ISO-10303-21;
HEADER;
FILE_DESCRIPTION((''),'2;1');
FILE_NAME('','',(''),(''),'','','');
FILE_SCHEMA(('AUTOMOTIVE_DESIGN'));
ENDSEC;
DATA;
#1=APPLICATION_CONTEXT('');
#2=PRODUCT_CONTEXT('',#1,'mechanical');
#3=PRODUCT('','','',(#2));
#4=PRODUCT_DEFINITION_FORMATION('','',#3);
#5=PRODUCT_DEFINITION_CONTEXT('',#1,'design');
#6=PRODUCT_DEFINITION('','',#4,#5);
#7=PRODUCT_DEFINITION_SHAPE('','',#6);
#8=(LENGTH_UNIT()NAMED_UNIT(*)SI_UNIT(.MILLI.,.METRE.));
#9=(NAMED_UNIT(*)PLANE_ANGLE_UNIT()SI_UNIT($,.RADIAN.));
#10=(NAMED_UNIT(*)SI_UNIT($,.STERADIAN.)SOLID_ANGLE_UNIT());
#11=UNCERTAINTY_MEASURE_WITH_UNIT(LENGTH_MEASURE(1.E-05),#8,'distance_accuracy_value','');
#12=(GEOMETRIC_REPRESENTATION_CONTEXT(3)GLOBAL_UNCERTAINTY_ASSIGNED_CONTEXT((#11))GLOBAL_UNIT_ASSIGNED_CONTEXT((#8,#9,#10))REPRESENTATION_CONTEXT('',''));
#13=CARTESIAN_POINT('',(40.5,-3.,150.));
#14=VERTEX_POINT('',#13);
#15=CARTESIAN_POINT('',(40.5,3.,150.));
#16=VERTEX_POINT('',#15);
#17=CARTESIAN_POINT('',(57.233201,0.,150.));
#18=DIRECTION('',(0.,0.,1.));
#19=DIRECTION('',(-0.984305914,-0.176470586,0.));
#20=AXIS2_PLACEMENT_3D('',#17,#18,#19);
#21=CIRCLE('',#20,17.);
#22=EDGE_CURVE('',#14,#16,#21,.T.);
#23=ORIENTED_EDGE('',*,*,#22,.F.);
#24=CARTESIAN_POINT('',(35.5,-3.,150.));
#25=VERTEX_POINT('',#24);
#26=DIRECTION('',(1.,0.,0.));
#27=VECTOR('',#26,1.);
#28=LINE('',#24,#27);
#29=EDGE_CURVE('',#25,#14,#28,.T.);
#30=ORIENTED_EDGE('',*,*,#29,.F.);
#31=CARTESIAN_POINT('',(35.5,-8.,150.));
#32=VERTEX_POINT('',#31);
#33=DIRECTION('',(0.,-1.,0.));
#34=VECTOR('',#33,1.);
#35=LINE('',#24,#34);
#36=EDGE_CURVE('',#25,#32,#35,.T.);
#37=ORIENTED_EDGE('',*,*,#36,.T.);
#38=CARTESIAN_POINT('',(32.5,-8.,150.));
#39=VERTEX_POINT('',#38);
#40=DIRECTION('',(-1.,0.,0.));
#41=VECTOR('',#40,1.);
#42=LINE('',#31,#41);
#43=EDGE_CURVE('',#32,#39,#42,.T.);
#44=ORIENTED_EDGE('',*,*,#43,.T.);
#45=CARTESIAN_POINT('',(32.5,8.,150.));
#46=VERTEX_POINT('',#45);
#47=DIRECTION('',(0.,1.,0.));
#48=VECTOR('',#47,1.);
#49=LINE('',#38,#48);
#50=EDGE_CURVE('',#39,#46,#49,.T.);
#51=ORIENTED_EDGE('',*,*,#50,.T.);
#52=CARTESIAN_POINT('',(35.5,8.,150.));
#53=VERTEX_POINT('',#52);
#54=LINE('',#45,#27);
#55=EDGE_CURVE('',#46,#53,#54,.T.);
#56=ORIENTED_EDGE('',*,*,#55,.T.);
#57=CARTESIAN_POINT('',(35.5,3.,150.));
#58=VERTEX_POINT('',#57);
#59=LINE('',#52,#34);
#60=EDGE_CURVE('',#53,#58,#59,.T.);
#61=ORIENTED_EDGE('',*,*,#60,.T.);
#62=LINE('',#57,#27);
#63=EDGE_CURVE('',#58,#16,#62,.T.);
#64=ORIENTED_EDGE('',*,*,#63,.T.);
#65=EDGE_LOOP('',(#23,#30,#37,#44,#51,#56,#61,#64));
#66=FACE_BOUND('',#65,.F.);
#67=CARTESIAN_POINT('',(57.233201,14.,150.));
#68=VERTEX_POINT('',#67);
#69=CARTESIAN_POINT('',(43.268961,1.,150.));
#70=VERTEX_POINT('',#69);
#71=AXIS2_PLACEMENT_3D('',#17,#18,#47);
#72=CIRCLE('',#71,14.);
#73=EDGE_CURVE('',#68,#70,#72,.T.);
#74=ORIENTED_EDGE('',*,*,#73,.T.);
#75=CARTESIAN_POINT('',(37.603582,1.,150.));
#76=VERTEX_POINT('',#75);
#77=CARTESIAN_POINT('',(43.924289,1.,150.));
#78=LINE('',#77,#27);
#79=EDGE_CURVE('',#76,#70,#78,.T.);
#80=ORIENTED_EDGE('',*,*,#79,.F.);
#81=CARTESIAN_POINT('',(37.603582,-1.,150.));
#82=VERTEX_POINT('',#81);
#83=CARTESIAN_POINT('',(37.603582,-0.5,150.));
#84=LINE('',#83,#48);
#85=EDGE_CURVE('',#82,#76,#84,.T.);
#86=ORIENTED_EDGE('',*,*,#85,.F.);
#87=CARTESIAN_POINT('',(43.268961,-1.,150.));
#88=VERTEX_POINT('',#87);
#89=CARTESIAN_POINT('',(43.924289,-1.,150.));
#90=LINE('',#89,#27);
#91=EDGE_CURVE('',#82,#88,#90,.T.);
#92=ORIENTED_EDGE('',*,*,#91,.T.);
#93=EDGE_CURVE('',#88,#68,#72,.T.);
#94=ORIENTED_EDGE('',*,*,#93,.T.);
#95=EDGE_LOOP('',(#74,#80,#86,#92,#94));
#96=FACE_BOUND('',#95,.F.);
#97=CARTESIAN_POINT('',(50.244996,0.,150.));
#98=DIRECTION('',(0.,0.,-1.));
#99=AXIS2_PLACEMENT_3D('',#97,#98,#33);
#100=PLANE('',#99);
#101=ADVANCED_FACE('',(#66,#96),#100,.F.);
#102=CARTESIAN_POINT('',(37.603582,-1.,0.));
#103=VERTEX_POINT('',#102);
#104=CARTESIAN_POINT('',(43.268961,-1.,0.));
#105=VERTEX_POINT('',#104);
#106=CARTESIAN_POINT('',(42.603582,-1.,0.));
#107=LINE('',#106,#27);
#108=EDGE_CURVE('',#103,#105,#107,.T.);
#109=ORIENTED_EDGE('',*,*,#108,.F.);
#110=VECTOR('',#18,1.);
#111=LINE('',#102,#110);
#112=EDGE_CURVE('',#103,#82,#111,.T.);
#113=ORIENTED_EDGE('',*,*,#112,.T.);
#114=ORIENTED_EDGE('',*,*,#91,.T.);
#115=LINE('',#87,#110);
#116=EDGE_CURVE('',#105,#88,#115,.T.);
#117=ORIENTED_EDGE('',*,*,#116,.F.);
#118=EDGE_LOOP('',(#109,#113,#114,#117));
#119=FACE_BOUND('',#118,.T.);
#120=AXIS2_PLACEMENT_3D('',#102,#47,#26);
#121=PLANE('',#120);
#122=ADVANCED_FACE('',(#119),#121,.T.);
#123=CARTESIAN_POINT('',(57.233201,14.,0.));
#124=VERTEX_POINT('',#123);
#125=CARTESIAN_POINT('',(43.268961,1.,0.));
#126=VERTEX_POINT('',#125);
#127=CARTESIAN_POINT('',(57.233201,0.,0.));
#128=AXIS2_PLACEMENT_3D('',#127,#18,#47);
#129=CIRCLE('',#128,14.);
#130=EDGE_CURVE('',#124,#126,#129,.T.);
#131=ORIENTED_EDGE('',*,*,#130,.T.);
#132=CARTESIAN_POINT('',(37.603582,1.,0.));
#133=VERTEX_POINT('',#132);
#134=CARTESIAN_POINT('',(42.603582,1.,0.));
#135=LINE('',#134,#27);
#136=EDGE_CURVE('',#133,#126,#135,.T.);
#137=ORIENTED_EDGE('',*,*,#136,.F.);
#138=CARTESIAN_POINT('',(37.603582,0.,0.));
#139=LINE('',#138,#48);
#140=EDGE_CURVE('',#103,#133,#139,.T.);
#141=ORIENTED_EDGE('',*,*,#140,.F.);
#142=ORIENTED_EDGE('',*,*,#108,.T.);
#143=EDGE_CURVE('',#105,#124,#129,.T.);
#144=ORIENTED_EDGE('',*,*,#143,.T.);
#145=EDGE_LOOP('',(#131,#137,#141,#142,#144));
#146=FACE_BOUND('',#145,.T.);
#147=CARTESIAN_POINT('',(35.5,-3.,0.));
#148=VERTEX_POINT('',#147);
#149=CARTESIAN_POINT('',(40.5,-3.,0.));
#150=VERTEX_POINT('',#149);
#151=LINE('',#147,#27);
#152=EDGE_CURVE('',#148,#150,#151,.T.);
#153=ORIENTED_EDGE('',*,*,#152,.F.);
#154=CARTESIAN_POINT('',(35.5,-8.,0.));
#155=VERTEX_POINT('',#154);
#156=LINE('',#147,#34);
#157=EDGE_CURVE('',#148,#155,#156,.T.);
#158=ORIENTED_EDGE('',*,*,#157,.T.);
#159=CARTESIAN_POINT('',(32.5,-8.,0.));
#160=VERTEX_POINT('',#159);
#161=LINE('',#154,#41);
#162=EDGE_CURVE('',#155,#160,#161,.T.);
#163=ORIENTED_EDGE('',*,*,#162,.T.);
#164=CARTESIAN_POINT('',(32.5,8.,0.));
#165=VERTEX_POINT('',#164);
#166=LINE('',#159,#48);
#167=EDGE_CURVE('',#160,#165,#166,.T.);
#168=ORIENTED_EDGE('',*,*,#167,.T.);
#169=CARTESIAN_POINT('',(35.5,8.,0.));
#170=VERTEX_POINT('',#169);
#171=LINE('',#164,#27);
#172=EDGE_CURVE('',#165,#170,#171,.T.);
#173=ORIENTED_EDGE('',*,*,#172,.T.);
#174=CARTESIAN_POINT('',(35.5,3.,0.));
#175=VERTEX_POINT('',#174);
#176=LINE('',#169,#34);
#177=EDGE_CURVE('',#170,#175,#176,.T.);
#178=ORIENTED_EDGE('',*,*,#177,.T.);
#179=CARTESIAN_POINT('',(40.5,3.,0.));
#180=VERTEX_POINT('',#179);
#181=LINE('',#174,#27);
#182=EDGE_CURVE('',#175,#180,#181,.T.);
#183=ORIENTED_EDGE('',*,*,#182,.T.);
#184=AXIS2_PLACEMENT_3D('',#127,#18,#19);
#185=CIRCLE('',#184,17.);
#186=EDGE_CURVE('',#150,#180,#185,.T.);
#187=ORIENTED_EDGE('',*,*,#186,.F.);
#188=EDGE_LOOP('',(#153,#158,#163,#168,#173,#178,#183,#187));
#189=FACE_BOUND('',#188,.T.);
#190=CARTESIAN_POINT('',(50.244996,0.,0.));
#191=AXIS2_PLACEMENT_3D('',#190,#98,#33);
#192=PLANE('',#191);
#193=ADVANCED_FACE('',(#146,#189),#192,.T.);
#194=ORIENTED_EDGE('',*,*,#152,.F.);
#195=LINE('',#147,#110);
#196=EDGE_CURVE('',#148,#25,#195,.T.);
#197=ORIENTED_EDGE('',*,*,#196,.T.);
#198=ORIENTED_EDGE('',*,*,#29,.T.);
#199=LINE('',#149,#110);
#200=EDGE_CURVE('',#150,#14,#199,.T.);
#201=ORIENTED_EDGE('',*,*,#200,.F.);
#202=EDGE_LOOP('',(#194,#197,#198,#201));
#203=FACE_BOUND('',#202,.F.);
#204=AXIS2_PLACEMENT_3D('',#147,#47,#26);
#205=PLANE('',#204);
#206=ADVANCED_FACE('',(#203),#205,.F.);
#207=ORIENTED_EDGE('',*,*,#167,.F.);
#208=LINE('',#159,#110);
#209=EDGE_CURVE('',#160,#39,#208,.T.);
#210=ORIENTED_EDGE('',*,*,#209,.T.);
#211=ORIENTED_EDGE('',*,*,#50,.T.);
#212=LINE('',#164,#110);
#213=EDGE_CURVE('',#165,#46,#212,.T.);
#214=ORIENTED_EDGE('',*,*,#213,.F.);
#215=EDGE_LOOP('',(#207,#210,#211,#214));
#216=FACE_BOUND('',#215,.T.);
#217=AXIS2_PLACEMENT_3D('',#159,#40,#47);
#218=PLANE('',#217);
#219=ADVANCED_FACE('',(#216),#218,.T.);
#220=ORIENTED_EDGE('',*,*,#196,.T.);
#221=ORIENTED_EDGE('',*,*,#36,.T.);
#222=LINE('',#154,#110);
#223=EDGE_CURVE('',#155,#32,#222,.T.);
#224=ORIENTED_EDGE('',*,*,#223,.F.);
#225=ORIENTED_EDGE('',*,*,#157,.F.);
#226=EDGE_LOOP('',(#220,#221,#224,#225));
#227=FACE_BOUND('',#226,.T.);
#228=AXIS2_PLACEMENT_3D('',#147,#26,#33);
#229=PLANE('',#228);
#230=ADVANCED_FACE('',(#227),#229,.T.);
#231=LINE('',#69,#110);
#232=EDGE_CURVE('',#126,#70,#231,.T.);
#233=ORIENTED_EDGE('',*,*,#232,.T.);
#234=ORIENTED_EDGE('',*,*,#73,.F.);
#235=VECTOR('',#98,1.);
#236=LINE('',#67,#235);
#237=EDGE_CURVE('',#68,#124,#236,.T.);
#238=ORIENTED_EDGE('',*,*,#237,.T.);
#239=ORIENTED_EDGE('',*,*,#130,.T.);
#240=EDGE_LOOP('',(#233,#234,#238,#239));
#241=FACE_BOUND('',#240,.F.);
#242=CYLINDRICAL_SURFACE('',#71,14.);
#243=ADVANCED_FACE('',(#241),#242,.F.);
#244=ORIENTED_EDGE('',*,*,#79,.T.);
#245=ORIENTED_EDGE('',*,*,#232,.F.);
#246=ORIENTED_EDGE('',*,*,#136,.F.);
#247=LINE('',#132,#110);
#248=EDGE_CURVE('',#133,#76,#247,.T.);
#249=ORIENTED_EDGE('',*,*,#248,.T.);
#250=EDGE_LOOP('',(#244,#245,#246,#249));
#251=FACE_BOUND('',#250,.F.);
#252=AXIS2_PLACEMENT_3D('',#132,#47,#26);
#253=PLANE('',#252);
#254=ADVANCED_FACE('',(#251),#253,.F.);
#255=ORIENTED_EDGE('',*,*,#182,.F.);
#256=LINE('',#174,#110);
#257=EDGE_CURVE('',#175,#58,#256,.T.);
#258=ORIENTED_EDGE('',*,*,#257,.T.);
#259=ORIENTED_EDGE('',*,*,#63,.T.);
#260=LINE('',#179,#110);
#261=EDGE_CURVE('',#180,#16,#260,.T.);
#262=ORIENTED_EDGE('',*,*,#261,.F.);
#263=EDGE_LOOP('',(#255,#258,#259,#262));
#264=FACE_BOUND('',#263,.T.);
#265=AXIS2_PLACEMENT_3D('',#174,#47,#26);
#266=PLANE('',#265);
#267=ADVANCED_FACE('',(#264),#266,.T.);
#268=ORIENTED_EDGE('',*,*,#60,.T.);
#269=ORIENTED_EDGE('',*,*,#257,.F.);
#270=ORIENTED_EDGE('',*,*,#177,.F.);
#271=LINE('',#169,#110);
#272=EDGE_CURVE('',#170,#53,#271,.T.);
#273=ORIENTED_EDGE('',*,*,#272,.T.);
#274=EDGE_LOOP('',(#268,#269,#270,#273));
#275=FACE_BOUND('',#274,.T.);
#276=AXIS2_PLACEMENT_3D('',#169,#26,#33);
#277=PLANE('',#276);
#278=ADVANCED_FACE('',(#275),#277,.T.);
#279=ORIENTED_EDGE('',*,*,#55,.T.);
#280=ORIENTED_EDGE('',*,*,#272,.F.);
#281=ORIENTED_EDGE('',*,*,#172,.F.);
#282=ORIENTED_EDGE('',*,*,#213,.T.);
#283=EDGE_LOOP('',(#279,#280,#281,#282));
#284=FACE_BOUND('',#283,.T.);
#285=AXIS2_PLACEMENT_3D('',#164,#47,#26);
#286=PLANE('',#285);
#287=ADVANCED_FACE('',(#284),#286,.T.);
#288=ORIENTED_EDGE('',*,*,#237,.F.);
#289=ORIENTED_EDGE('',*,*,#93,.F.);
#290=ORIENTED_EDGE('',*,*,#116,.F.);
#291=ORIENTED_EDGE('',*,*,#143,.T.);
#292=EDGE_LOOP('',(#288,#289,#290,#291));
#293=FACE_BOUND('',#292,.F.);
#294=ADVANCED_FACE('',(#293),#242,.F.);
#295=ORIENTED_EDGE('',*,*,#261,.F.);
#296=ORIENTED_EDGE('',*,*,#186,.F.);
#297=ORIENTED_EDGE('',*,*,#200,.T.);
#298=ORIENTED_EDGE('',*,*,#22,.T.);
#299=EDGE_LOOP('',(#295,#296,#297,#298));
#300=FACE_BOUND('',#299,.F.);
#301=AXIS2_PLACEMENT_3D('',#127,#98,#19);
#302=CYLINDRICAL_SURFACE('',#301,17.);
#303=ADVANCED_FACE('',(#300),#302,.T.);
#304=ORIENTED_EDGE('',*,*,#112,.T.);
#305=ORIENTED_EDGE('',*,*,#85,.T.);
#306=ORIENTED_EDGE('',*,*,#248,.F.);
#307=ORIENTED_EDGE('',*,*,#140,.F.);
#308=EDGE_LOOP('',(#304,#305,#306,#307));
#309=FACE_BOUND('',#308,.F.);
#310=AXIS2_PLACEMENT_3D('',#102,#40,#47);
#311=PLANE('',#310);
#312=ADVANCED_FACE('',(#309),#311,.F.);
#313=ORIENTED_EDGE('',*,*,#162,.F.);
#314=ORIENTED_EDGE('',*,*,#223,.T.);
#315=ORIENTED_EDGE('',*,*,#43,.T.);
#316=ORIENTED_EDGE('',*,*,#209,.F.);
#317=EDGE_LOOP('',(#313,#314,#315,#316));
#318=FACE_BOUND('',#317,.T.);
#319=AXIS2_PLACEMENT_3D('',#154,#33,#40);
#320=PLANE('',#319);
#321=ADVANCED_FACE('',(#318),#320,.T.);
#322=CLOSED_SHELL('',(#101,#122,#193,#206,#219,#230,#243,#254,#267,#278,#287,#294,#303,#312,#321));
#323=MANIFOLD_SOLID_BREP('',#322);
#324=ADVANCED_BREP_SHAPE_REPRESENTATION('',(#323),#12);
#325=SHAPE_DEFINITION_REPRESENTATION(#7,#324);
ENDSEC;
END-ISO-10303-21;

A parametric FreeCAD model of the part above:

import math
import FreeCAD as App
import Part
import Sketcher

V = App.Vector
Q = App.Units.Quantity


def add_polygon(sketch, points):
    """Adds a closed chain of lines whose ends are joined by coincident constraints."""
    first, n = sketch.GeometryCount, len(points)
    for a, b in zip(points, points[1:] + points[:1]):
        sketch.addGeometry(Part.LineSegment(App.Vector(*a, 0), App.Vector(*b, 0)), False)
    for i in range(n):
        sketch.addConstraint(Sketcher.Constraint("Coincident", first + i, 2, first + (i + 1) % n, 1))

doc = App.newDocument("Part")
body = doc.addObject("PartDesign::Body", "Body")

# Sketch on XY plane
sketch1 = doc.addObject("Sketcher::SketchObject", "Sketch")
body.addObject(sketch1)
sketch1.AttachmentSupport = (doc.XY_Plane, [""])
sketch1.MapMode = "FlatFace"
sketch1.addGeometry([
    Part.LineSegment(V(-8, -3, 0), V(-3, -3, 0)),  # 0
    Part.LineSegment(V(-3, -3, 0), V(-3, -8, 0)),  # 1
    Part.ArcOfCircle(Part.Circle(V(0, -24.7, 0), V(0, 0, 1), 17), math.radians(100), math.radians(440)),  # 2
    Part.LineSegment(V(3, -8, 0), V(3, -3, 0)),  # 3
    Part.LineSegment(V(3, -3, 0), V(8, -3, 0)),  # 4
    Part.LineSegment(V(8, -3, 0), V(8, 0, 0)),  # 5
    Part.LineSegment(V(8, 0, 0), V(-8, 0, 0)),  # 6
    Part.LineSegment(V(-8, 0, 0), V(-8, -3, 0)),  # 7
], False)
sketch1.addConstraint([
    Sketcher.Constraint("Coincident", 0, 2, 1, 1),
    Sketcher.Constraint("Coincident", 1, 2, 2, 1),
    Sketcher.Constraint("Coincident", 2, 2, 3, 1),
    Sketcher.Constraint("Coincident", 3, 2, 4, 1),
    Sketcher.Constraint("Coincident", 4, 2, 5, 1),
    Sketcher.Constraint("Coincident", 5, 2, 6, 1),
    Sketcher.Constraint("Coincident", 6, 2, 7, 1),
    Sketcher.Constraint("Coincident", 7, 2, 0, 1),
    Sketcher.Constraint("Horizontal", 0),
    Sketcher.Constraint("Vertical", 1),
    Sketcher.Constraint("Vertical", 3),
    Sketcher.Constraint("Horizontal", 4),
    Sketcher.Constraint("Vertical", 5),
    Sketcher.Constraint("Horizontal", 6),
    Sketcher.Constraint("Vertical", 7),
    Sketcher.Constraint("Symmetric", 5, 2, 6, 2, -1, 1),
    Sketcher.Constraint("Symmetric", 1, 2, 2, 2, -2),
    Sketcher.Constraint("Horizontal", 0, 2, 3, 2),
    Sketcher.Constraint("Equal", 4, 1),
    Sketcher.Constraint("Radius", 2, Q("17 mm")),
    Sketcher.Constraint("DistanceX", 0, 1, 0, 2, Q("5 mm")),
    Sketcher.Constraint("DistanceX", 6, 2, 6, 1, Q("16 mm")),
    Sketcher.Constraint("DistanceY", 5, 1, 5, 2, Q("3 mm")),
])
pad1 = doc.addObject("PartDesign::Pad", "Pad")
body.addObject(pad1)
pad1.Profile = sketch1
pad1.Length = 150

# Sketch on XY plane
sketch2 = doc.addObject("Sketcher::SketchObject", "Sketch001")
body.addObject(sketch2)
sketch2.AttachmentSupport = (doc.XY_Plane, [""])
sketch2.MapMode = "FlatFace"
sketch2.AttachmentOffset = App.Placement(V(0, 0, 150), App.Rotation())
sketch2.addGeometry(Part.Circle(V(0, -25, 0), V(0, 0, 1), 14), False)
sketch2.addConstraint([
    Sketcher.Constraint("PointOnObject", 0, 3, -2),
    Sketcher.Constraint("Diameter", 0, Q("28 mm")),
    Sketcher.Constraint("DistanceY", 0, 3, -1, 1, Q("24.733201 mm")),
])
pocket1 = doc.addObject("PartDesign::Pocket", "Pocket")
body.addObject(pocket1)
pocket1.Profile = sketch2
pocket1.Type = "ThroughAll"

# Sketch on XY plane
sketch3 = doc.addObject("Sketcher::SketchObject", "Sketch002")
body.addObject(sketch3)
sketch3.AttachmentSupport = (doc.XY_Plane, [""])
sketch3.MapMode = "FlatFace"
add_polygon(sketch3, [(-1, -15.1), (-1, -5.1), (1, -5.1), (1, -15.1)])  # lines 0-3
sketch3.addConstraint([
    Sketcher.Constraint("Vertical", 0),
    Sketcher.Constraint("Horizontal", 1),
    Sketcher.Constraint("Vertical", 2),
    Sketcher.Constraint("Horizontal", 3),
    Sketcher.Constraint("DistanceX", 1, 1, 1, 2, Q("2 mm")),
    Sketcher.Constraint("DistanceY", 0, 1, 0, 2, Q("10 mm")),
    Sketcher.Constraint("DistanceX", 0, 2, -1, 1, Q("1 mm")),
    Sketcher.Constraint("DistanceY", 0, 2, -1, 1, Q("5.103582 mm")),
])
pocket2 = doc.addObject("PartDesign::Pocket", "Pocket001")
body.addObject(pocket2)
pocket2.Profile = sketch3
pocket2.Type = "ThroughAll"
pocket2.Reversed = True
body2 = doc.addObject("PartDesign::Body", "Body001")
doc.recompute()

body.Placement = App.Placement(V(32.5, 0, 0), App.Rotation(V(0, 0, 1), 90))
boolean = doc.addObject("PartDesign::Boolean", "Boolean")
body2.addObject(boolean)
boolean.Type = "Fuse"
boolean.addObjects([body])

doc.recompute()
